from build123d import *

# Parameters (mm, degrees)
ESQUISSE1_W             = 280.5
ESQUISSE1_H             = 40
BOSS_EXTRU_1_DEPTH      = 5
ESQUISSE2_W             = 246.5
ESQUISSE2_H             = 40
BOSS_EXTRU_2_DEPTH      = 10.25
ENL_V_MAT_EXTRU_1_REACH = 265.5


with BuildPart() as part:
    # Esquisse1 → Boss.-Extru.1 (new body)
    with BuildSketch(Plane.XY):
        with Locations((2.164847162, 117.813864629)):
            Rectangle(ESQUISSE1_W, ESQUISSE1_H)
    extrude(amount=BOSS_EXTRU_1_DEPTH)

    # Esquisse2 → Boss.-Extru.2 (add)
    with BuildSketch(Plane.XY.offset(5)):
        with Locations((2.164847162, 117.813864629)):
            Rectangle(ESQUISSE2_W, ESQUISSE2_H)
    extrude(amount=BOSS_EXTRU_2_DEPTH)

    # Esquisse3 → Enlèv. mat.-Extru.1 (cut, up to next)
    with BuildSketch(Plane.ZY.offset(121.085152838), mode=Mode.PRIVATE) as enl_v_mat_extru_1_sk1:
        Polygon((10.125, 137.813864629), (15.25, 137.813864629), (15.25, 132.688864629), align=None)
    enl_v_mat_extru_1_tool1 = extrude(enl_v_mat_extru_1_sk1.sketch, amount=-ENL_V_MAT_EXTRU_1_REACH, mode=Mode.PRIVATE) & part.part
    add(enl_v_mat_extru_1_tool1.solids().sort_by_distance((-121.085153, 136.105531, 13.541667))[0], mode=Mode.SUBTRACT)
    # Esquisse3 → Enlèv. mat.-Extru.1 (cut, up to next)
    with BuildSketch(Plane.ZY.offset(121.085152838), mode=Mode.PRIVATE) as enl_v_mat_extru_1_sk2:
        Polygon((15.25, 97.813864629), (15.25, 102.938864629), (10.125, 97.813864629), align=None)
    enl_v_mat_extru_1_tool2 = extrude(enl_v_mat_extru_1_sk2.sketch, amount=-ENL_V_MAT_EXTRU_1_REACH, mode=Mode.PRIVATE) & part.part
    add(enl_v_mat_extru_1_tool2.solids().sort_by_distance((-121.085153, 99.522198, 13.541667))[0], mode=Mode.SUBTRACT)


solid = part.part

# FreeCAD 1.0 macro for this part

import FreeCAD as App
import Part
import Sketcher

V = App.Vector

doc = App.newDocument("Part")
body = doc.addObject("PartDesign::Body", "Body")

# Sketch on XY plane
sketch1 = body.newObject("Sketcher::SketchObject", "Sketch")
sketch1.AttachmentSupport = (doc.getObject("XY_Plane"), [""])
sketch1.MapMode = "FlatFace"
sketch1.addGeometry([
    Part.LineSegment(V(-138, 138, 0), V(-138, 98, 0)),
    Part.LineSegment(V(-138, 98, 0), V(142, 98, 0)),
    Part.LineSegment(V(142, 98, 0), V(142, 138, 0)),
    Part.LineSegment(V(142, 138, 0), V(-138, 138, 0)),
], False)
sketch1.addConstraint([
    Sketcher.Constraint("Coincident", 0, 2, 1, 1),
    Sketcher.Constraint("Coincident", 1, 2, 2, 1),
    Sketcher.Constraint("Coincident", 2, 2, 3, 1),
    Sketcher.Constraint("Coincident", 3, 2, 0, 1),
    Sketcher.Constraint("Vertical", 0),
    Sketcher.Constraint("Horizontal", 1),
    Sketcher.Constraint("Vertical", 2),
    Sketcher.Constraint("Horizontal", 3),
    Sketcher.Constraint("DistanceY", 0, 2, 0, 1, 40.0),
    Sketcher.Constraint("DistanceX", 1, 1, 1, 2, 280.5),
    Sketcher.Constraint("DistanceX", 0, 2, -1, 1, 138.085153),
    Sketcher.Constraint("DistanceY", -1, 1, 0, 2, 97.813865),
])
pad1 = body.newObject("PartDesign::Pad", "Pad")
pad1.Profile = sketch1
pad1.Length = 5

# Sketch on XY plane
sketch2 = body.newObject("Sketcher::SketchObject", "Sketch001")
sketch2.AttachmentSupport = (doc.getObject("XY_Plane"), [""])
sketch2.MapMode = "FlatFace"
sketch2.AttachmentOffset = App.Placement(V(0, 0, 5), App.Rotation())
sketch2.addGeometry([
    Part.LineSegment(V(-121, 138, 0), V(-121, 98, 0)),
    Part.LineSegment(V(-121, 98, 0), V(125, 98, 0)),
    Part.LineSegment(V(125, 98, 0), V(125, 138, 0)),
    Part.LineSegment(V(125, 138, 0), V(-121, 138, 0)),
], False)
sketch2.addConstraint([
    Sketcher.Constraint("Coincident", 0, 2, 1, 1),
    Sketcher.Constraint("Coincident", 1, 2, 2, 1),
    Sketcher.Constraint("Coincident", 2, 2, 3, 1),
    Sketcher.Constraint("Coincident", 3, 2, 0, 1),
    Sketcher.Constraint("Vertical", 0),
    Sketcher.Constraint("Horizontal", 1),
    Sketcher.Constraint("Vertical", 2),
    Sketcher.Constraint("Horizontal", 3),
    Sketcher.Constraint("DistanceY", 0, 2, 0, 1, 40.0),
    Sketcher.Constraint("DistanceX", 1, 1, 1, 2, 246.5),
    Sketcher.Constraint("DistanceX", 0, 2, -1, 1, 121.085153),
    Sketcher.Constraint("DistanceY", -1, 1, 0, 2, 97.813865),
])
pad2 = body.newObject("PartDesign::Pad", "Pad001")
pad2.Profile = sketch2
pad2.Length = 10.25

# Sketch on YZ plane
sketch3 = body.newObject("Sketcher::SketchObject", "Sketch002")
sketch3.AttachmentSupport = (doc.getObject("YZ_Plane"), [""])
sketch3.MapMode = "FlatFace"
sketch3.AttachmentOffset = App.Placement(V(0, 0, -121.085153), App.Rotation())
sketch3.addGeometry([
    Part.LineSegment(V(138, 15, 0), V(138, 10, 0)),
    Part.LineSegment(V(138, 10, 0), V(133, 15, 0)),
    Part.LineSegment(V(133, 15, 0), V(138, 15, 0)),
], False)
sketch3.addConstraint([
    Sketcher.Constraint("Coincident", 0, 2, 1, 1),
    Sketcher.Constraint("Coincident", 1, 2, 2, 1),
    Sketcher.Constraint("Coincident", 2, 2, 0, 1),
    Sketcher.Constraint("Vertical", 0),
    Sketcher.Constraint("Horizontal", 2),
    Sketcher.Constraint("Equal", 2, 0),
    Sketcher.Constraint("DistanceX", 2, 1, 2, 2, 5.125),
    Sketcher.Constraint("DistanceY", -1, 1, 1, 2, 15.25),
    Sketcher.Constraint("DistanceX", -1, 1, 0, 2, 137.813865),
])
pocket1 = body.newObject("PartDesign::Pocket", "Pocket")
pocket1.Profile = sketch3
pocket1.Type = "UpToFirst"
pocket1.Reversed = True

# Sketch on YZ plane
sketch4 = body.newObject("Sketcher::SketchObject", "Sketch003")
sketch4.AttachmentSupport = (doc.getObject("YZ_Plane"), [""])
sketch4.MapMode = "FlatFace"
sketch4.AttachmentOffset = App.Placement(V(0, 0, -121.085153), App.Rotation())
sketch4.addGeometry([
    Part.LineSegment(V(98, 15, 0), V(103, 15, 0)),
    Part.LineSegment(V(103, 15, 0), V(98, 10, 0)),
    Part.LineSegment(V(98, 10, 0), V(98, 15, 0)),
], False)
sketch4.addConstraint([
    Sketcher.Constraint("Coincident", 0, 2, 1, 1),
    Sketcher.Constraint("Coincident", 1, 2, 2, 1),
    Sketcher.Constraint("Coincident", 2, 2, 0, 1),
    Sketcher.Constraint("Horizontal", 0),
    Sketcher.Constraint("Vertical", 2),
    Sketcher.Constraint("Equal", 0, 2),
    Sketcher.Constraint("DistanceX", 0, 1, 0, 2, 5.125),
    Sketcher.Constraint("DistanceY", -1, 1, 0, 2, 15.25),
    Sketcher.Constraint("DistanceX", -1, 1, 0, 2, 102.938865),
])
pocket2 = body.newObject("PartDesign::Pocket", "Pocket001")
pocket2.Profile = sketch4
pocket2.Type = "UpToFirst"
pocket2.Reversed = True

doc.recompute()
